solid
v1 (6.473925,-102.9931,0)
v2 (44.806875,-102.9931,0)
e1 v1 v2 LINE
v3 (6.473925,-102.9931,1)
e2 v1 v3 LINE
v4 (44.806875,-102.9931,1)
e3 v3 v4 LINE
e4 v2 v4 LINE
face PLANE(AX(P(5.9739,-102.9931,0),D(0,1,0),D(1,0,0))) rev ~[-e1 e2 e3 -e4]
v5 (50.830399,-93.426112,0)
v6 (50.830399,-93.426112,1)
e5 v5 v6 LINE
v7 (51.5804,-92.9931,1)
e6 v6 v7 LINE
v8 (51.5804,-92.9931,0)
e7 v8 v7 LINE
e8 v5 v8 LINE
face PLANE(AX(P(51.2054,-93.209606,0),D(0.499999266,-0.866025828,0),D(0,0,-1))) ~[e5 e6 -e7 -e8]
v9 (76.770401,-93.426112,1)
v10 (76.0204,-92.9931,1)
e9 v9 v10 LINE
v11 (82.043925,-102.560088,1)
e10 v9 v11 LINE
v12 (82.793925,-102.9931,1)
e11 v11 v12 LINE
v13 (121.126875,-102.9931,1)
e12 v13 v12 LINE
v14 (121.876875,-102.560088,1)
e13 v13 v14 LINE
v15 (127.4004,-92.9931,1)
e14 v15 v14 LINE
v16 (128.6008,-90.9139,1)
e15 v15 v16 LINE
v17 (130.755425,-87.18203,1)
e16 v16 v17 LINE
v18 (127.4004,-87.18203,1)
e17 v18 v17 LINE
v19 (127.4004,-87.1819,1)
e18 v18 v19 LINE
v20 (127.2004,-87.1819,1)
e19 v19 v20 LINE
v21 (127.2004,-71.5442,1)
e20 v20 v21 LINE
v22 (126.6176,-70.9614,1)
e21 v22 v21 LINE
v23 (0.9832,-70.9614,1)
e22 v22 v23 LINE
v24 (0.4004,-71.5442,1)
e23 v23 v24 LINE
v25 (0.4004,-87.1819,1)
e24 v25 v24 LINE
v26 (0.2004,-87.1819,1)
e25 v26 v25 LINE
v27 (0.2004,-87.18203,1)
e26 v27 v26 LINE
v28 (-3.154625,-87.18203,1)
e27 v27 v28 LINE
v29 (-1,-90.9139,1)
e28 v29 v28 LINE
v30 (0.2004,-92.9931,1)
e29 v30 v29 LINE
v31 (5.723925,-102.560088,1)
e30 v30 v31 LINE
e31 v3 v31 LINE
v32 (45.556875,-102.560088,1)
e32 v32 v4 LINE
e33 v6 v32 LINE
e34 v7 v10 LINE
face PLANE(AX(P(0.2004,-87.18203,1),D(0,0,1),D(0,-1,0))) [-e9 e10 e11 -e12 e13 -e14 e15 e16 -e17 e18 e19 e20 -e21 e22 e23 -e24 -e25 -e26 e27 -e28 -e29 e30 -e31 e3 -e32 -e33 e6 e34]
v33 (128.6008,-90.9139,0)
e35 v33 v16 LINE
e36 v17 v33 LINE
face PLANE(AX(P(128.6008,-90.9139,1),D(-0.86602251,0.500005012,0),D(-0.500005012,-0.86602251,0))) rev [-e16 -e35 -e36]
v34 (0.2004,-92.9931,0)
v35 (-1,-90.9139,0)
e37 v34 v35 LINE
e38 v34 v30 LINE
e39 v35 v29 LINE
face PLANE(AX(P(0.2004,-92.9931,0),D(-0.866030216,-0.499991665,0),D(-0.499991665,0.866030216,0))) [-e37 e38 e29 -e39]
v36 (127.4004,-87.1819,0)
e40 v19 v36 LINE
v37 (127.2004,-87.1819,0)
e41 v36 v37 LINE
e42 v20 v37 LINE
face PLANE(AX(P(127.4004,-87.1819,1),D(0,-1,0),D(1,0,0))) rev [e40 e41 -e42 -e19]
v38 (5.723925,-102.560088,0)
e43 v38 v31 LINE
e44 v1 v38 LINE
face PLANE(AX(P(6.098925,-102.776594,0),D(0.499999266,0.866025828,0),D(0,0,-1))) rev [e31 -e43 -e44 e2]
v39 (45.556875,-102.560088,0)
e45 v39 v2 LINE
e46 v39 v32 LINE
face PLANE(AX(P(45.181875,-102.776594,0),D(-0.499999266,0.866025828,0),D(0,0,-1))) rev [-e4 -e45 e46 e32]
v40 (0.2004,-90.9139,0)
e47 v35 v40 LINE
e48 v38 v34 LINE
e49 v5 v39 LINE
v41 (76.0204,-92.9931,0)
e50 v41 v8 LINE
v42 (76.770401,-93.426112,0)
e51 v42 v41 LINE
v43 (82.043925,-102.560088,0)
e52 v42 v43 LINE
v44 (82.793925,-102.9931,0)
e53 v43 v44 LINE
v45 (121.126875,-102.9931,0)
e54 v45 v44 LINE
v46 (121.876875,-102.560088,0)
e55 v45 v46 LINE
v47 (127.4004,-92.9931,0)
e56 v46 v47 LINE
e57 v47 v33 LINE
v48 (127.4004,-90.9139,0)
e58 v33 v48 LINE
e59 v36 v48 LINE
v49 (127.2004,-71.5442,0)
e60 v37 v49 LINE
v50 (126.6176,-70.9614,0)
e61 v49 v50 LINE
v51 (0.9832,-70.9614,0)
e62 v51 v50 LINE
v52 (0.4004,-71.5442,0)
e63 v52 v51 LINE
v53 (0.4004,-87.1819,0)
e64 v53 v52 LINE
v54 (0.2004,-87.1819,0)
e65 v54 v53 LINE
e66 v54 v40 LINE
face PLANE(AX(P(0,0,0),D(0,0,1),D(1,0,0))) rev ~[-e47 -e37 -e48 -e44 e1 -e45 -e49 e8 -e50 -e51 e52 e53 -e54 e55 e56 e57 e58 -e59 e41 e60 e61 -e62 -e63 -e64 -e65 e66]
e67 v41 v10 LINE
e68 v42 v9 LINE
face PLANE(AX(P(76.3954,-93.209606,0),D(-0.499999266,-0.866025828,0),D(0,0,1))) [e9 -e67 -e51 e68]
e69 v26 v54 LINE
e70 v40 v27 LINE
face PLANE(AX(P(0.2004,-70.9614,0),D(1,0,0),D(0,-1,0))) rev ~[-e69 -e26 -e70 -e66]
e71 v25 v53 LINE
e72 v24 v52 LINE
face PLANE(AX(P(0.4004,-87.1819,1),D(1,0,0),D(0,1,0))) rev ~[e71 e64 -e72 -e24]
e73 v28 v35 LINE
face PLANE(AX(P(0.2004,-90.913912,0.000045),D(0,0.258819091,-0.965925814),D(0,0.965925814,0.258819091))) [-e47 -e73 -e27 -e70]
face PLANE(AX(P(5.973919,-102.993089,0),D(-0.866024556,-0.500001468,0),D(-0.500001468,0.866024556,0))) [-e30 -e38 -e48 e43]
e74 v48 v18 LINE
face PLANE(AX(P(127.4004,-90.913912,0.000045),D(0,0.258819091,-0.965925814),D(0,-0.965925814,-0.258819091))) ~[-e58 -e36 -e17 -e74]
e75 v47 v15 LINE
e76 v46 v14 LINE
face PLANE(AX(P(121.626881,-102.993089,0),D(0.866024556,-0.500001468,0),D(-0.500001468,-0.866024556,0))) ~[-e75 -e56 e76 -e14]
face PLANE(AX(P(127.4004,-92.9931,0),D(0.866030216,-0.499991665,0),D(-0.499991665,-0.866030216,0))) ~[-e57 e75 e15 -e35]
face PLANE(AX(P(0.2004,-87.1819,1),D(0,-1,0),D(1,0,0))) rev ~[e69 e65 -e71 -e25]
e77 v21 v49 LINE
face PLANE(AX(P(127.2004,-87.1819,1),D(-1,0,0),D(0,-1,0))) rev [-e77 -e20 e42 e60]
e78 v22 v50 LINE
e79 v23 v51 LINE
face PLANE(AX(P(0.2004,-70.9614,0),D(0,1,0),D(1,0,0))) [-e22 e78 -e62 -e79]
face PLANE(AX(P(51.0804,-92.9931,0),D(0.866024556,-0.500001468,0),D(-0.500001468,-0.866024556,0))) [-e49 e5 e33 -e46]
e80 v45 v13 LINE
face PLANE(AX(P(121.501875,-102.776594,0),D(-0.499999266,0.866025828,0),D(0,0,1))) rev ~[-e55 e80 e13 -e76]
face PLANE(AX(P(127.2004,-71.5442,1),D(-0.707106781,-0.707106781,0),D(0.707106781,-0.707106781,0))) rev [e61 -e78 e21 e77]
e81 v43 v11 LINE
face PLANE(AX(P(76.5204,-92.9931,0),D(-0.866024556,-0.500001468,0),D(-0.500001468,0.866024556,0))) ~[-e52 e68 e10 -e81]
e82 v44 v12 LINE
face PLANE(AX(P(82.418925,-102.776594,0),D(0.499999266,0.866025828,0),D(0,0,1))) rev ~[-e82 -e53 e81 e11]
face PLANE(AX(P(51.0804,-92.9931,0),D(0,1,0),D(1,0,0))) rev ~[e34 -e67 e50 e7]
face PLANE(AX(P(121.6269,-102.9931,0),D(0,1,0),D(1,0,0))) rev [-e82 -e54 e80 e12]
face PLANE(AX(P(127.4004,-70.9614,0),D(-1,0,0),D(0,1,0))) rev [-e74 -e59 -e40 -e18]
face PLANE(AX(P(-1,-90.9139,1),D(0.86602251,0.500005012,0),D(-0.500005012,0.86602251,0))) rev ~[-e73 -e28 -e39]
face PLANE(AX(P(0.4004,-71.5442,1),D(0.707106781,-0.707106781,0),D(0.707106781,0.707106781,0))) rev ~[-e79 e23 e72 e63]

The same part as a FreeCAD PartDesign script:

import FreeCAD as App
import Part
import Sketcher
from FreeCAD import Vector
Q = App.Units.Quantity


def edges_at(feature, points):
    """Names of the edges that pass closest to the given points."""
    edges = feature.Shape.Edges
    near = lambda p: min(range(len(edges)), key=lambda i: edges[i].distToShape(Part.Vertex(*p))[0])
    return sorted({f"Edge{near(p) + 1}" for p in points})


def add_polygon(sketch, points):
    """Adds a closed chain of lines whose ends are joined by coincident constraints."""
    first, n = sketch.GeometryCount, len(points)
    for a, b in zip(points, points[1:] + points[:1]):
        sketch.addGeometry(Part.LineSegment(App.Vector(*a, 0), App.Vector(*b, 0)), False)
    for i in range(n):
        sketch.addConstraint(Sketcher.Constraint("Coincident", first + i, 2, first + (i + 1) % n, 1))

doc = App.newDocument("Part")
body = doc.addObject("PartDesign::Body", "Body")

sketch1 = body.newObject("Sketcher::SketchObject", "Sketch")
sketch1.AttachmentSupport = (doc.getObject("XY_Plane"), [""])
sketch1.MapMode = "FlatFace"
add_polygon(sketch1, [(0.2, -71), (0.2, -90.9), (-1, -90.9), (0.2, -93), (6, -103), (45.3, -103), (51.1, -93), (63.8, -93), (63.8, -71)])
sketch1.addConstraint([
    Sketcher.Constraint("Vertical", 0),
    Sketcher.Constraint("Horizontal", 1),
    Sketcher.Constraint("Horizontal", 4),
    Sketcher.Constraint("Horizontal", 6),
    Sketcher.Constraint("Vertical", 7),
    Sketcher.Constraint("Horizontal", 8),
    Sketcher.Constraint("Parallel", 2, 3),
    Sketcher.Constraint("Horizontal", 2, 2, 5, 2),
    Sketcher.Constraint("Vertical", 0, 2, 2, 2),
    Sketcher.Constraint("Equal", 3, 5),
    Sketcher.Constraint("DistanceX", 1, 2, -1, 1, Q("1 mm")),
    Sketcher.Constraint("DistanceY", 3, 2, 2, 2, Q("10 mm")),
    Sketcher.Constraint("Angle", 2, Q("-60.0006 deg")),
    Sketcher.Constraint("DistanceX", 2, 2, 5, 2, Q("50.88 mm")),
    Sketcher.Constraint("DistanceX", 8, 2, 8, 1, Q("63.6 mm")),
    Sketcher.Constraint("DistanceX", 1, 2, 1, 1, Q("1.2004 mm")),
    Sketcher.Constraint("DistanceY", 0, 2, 0, 1, Q("19.9525 mm")),
    Sketcher.Constraint("DistanceY", 0, 2, -1, 1, Q("90.914 mm")),
])
pad1 = body.newObject("PartDesign::Pad", "Pad")
pad1.Profile = sketch1
pad1.Length = 1
doc.recompute()

chamfer = body.newObject("PartDesign::Chamfer", "Chamfer")
chamfer.Base = (pad1, edges_at(pad1, [
    (0.2, -70.961, 0.5),
    (45.307, -102.993, 0.5),
    (5.974, -102.993, 0.5),
    (51.08, -92.993, 0.5),
]))
chamfer.Size = 0.5

sketch2 = body.newObject("Sketcher::SketchObject", "Sketch001")
sketch2.AttachmentSupport = (doc.getObject("YZ_Plane"), [""])
sketch2.MapMode = "FlatFace"
sketch2.AttachmentOffset = App.Placement(Vector(0, 0, 0.2004), App.Rotation())
add_polygon(sketch2, [(-87.2, 1), (-90.9, 0), (-90.9, 1)])
sketch2.addConstraint([
    Sketcher.Constraint("Vertical", 1),
    Sketcher.Constraint("Horizontal", 2),
    Sketcher.Constraint("PointOnObject", 0, 2, -1),
    Sketcher.Constraint("DistanceY", 1, 1, 1, 2, Q("1 mm")),
    Sketcher.Constraint("Angle", 0, Q("-165 deg")),
    Sketcher.Constraint("DistanceX", 0, 2, -1, 1, Q("90.914 mm")),
])
pad2 = body.newObject("PartDesign::Pad", "Pad001")
pad2.Profile = sketch2
pad2.Length = 4
pad2.Reversed = True

sketch3 = body.newObject("Sketcher::SketchObject", "Sketch002")
sketch3.AttachmentSupport = (doc.getObject("XY_Plane"), [""])
sketch3.MapMode = "FlatFace"
sketch3.AttachmentOffset = App.Placement(Vector(0, 0, 1), App.Rotation())
add_polygon(sketch3, [(-3.8, -90.9), (-1, -90.9), (-3.2, -87.2), (-3.8, -87.2)])
sketch3.addConstraint([
    Sketcher.Constraint("Horizontal", 0),
    Sketcher.Constraint("Horizontal", 2),
    Sketcher.Constraint("Vertical", 3),
    Sketcher.Constraint("Angle", 1, Q("120.0003 deg")),
    Sketcher.Constraint("DistanceX", 0, 2, -1, 1, Q("1 mm")),
    Sketcher.Constraint("DistanceX", 2, 2, 2, 1, Q("0.645 mm")),
    Sketcher.Constraint("DistanceY", 3, 2, 3, 1, Q("3.732 mm")),
    Sketcher.Constraint("DistanceY", 0, 2, -1, 1, Q("90.914 mm")),
])
pocket1 = body.newObject("PartDesign::Pocket", "Pocket")
pocket1.Profile = sketch3
pocket1.Length = 4

sketch4 = body.newObject("Sketcher::SketchObject", "Sketch003")
sketch4.AttachmentSupport = (doc.getObject("XY_Plane"), [""])
sketch4.MapMode = "FlatFace"
sketch4.AttachmentOffset = App.Placement(Vector(0, 0, 1), App.Rotation())
add_polygon(sketch4, [(0.2, -71.46), (0.2, -87.18), (0.4, -87.18), (0.4, -71.54), (0.98, -70.96), (0.7, -70.96)])
sketch4.addConstraint([
    Sketcher.Constraint("Vertical", 0),
    Sketcher.Constraint("Horizontal", 1),
    Sketcher.Constraint("Vertical", 2),
    Sketcher.Constraint("Horizontal", 4),
    Sketcher.Constraint("Parallel", 3, 5),
    Sketcher.Constraint("DistanceX", 1, 1, 1, 2, Q("0.2 mm")),
    Sketcher.Constraint("Angle", 3, Q("45 deg")),
    Sketcher.Constraint("DistanceX", -1, 1, 0, 2, Q("0.2004 mm")),
    Sketcher.Constraint("DistanceX", 2, 2, 4, 2, Q("0.3 mm")),
    Sketcher.Constraint("DistanceX", 4, 2, 4, 1, Q("0.2828 mm")),
    Sketcher.Constraint("DistanceY", 0, 2, 0, 1, Q("15.7205 mm")),
    Sketcher.Constraint("DistanceY", 0, 2, -1, 1, Q("87.182 mm")),
])
pocket2 = body.newObject("PartDesign::Pocket", "Pocket001")
pocket2.Profile = sketch4
pocket2.Length = 10
doc.recompute()

datumplane = body.newObject("PartDesign::Plane", "DatumPlane")
datumplane.AttachmentSupport = (doc.getObject("YZ_Plane"), [""])
datumplane.MapMode = "FlatFace"
datumplane.AttachmentOffset = App.Placement(Vector(0, 0, 63.8004), App.Rotation())
mirrored = body.newObject("PartDesign::Mirrored", "Mirrored")
mirrored.TransformMode = "Transform body"
mirrored.MirrorPlane = (datumplane, [""])
body.Tip = mirrored

doc.recompute()
